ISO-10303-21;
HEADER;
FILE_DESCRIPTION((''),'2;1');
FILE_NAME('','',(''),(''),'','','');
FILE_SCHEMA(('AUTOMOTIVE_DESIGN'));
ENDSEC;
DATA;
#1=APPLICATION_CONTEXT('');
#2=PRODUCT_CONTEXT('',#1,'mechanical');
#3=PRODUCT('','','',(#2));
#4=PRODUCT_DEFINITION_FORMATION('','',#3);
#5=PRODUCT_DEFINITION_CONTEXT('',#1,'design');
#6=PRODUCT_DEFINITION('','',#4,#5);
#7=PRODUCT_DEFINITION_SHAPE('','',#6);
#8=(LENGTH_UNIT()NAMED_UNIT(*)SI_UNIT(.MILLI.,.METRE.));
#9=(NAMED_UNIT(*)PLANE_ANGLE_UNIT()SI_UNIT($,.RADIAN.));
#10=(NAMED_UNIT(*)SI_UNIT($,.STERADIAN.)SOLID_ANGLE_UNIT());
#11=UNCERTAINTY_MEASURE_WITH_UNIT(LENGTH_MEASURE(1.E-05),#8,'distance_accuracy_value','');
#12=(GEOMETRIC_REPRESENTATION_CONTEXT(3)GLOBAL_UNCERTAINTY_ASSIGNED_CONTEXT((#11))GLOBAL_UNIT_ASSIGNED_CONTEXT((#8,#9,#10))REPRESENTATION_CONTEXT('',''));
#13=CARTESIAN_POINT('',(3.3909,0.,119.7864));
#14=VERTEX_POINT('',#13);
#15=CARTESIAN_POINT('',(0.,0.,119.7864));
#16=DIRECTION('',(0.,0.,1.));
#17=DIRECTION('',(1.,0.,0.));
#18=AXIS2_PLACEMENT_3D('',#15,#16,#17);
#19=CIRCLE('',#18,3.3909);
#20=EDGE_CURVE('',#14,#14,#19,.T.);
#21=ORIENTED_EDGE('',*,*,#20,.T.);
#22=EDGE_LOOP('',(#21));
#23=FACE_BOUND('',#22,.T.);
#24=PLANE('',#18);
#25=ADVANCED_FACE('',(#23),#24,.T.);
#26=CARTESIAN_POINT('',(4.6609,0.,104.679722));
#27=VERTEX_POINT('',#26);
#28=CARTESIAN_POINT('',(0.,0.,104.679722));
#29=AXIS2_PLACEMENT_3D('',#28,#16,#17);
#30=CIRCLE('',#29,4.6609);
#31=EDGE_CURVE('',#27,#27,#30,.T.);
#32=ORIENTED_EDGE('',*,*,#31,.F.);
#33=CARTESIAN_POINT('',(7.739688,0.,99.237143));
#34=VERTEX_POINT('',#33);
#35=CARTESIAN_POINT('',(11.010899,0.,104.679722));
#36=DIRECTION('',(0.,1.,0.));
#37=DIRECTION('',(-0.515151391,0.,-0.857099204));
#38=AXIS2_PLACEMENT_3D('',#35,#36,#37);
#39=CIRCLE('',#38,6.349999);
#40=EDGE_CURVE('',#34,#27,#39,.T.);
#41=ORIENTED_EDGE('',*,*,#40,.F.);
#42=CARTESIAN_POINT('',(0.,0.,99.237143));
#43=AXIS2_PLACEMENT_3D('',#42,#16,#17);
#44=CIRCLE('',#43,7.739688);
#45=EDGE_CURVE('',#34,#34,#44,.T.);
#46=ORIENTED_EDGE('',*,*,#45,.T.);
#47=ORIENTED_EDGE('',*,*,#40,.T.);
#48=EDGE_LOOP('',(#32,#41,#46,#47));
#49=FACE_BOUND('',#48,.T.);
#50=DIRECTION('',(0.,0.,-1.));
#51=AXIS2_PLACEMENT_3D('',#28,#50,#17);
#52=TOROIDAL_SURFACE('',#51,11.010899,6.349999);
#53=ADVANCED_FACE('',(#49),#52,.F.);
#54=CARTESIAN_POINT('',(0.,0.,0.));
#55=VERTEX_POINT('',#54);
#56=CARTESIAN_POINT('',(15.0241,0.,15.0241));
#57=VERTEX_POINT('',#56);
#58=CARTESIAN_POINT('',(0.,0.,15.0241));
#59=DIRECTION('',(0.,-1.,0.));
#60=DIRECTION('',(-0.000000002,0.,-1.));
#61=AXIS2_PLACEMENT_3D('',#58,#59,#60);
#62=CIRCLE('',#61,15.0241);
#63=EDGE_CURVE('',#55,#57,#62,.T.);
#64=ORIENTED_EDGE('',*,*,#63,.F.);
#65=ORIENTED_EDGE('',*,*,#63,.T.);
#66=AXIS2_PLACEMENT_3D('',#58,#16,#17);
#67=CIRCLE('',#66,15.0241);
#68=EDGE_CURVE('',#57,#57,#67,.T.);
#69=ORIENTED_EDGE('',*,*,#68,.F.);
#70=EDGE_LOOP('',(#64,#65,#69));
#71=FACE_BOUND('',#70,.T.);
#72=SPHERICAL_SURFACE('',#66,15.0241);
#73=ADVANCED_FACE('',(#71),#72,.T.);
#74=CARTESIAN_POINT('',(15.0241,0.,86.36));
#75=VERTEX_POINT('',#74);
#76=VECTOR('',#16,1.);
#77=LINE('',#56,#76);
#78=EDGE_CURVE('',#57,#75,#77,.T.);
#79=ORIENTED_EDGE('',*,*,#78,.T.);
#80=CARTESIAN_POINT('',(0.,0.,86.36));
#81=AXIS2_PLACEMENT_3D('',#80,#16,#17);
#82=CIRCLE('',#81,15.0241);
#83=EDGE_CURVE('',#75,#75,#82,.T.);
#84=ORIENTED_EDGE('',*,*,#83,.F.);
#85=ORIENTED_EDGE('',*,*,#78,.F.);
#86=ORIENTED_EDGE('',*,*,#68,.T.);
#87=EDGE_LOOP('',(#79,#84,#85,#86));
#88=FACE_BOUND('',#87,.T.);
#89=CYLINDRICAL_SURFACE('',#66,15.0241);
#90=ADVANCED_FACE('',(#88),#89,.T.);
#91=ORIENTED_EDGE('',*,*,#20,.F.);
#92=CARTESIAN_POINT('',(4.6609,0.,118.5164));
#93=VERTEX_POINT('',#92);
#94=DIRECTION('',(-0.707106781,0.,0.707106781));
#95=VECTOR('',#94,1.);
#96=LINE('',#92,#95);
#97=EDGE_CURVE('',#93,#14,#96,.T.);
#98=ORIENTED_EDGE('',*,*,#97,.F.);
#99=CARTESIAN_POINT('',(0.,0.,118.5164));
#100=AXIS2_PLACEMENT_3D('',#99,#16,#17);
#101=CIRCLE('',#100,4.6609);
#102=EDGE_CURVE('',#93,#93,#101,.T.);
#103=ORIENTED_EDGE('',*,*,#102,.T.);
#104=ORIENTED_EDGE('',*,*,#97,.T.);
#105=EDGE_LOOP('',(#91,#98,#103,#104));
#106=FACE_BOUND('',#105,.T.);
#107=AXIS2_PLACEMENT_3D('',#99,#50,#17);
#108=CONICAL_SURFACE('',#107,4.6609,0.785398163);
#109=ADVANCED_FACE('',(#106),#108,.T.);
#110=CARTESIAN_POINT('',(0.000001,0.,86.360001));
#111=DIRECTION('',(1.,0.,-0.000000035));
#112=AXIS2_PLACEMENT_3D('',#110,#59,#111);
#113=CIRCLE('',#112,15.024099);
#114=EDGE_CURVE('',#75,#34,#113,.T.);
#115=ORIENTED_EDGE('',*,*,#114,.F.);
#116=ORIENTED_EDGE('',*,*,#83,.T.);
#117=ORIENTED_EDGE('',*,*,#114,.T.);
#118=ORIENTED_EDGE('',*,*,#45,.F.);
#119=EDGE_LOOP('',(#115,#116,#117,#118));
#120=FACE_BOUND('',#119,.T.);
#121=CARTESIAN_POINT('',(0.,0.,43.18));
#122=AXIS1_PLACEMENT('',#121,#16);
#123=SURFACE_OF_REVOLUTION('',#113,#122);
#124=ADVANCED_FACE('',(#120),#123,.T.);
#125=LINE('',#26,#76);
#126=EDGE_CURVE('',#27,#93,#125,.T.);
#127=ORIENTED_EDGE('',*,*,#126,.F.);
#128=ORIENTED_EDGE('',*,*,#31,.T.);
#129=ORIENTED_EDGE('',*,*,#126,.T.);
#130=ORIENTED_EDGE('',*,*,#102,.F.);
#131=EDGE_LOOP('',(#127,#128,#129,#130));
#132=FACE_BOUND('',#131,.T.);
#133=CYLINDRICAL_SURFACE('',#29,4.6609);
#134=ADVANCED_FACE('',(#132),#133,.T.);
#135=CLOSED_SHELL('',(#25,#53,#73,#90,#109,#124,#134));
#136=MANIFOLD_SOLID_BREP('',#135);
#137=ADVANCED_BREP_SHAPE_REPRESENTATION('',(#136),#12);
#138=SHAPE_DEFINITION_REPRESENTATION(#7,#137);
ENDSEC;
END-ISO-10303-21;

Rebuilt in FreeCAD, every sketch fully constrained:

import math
import FreeCAD as App
import Part
import Sketcher

V = App.Vector
Q = App.Units.Quantity


def edges_at(feature, points):
    """Names of the edges that pass closest to the given points."""
    edges = feature.Shape.Edges
    near = lambda p: min(range(len(edges)), key=lambda i: edges[i].distToShape(Part.Vertex(*p))[0])
    return sorted({f"Edge{near(p) + 1}" for p in points})

doc = App.newDocument("Part")
body = doc.addObject("PartDesign::Body", "Body")

# Sketch on XZ plane
sketch1 = body.newObject("Sketcher::SketchObject", "Sketch")
sketch1.AttachmentSupport = (doc.getObject("XZ_Plane"), [""])
sketch1.MapMode = "FlatFace"
sketch1.addGeometry([
    Part.ArcOfCircle(Part.Circle(V(0, 15, 0), V(0, 0, 1), 15), math.radians(-90), math.radians(0)),  # 0
    Part.LineSegment(V(15, 15, 0), V(15, 86.4, 0)),  # 1
    Part.ArcOfCircle(Part.Circle(V(0, 86.4, 0), V(0, 0, 1), 15), math.radians(0), math.radians(59)),  # 2
    Part.ArcOfCircle(Part.Circle(V(11, 104.7, 0), V(0, 0, 1), 6.3), math.radians(180), math.radians(239)),  # 3
    Part.LineSegment(V(4.7, 104.7, 0), V(4.7, 119.8, 0)),  # 4
    Part.LineSegment(V(4.7, 119.8, 0), V(0, 119.8, 0)),  # 5
    Part.LineSegment(V(0, 119.8, 0), V(0, 0, 0)),  # 6
], False)
sketch1.addConstraint([
    Sketcher.Constraint("Tangent", 0, 2, 1, 1),
    Sketcher.Constraint("Tangent", 1, 2, 2, 1),
    Sketcher.Constraint("Tangent", 2, 2, 3, 2),
    Sketcher.Constraint("Tangent", 3, 1, 4, 1),
    Sketcher.Constraint("Coincident", 4, 2, 5, 1),
    Sketcher.Constraint("Coincident", 5, 2, 6, 1),
    Sketcher.Constraint("Coincident", 6, 2, 0, 1),
    Sketcher.Constraint("Vertical", 1),
    Sketcher.Constraint("Vertical", 4),
    Sketcher.Constraint("Horizontal", 5),
    Sketcher.Constraint("Vertical", 6),
    Sketcher.Constraint("Coincident", 6, 2, -1, 1),
    Sketcher.Constraint("Equal", 0, 2),
    Sketcher.Constraint("PointOnObject", 0, 3, -2),
    Sketcher.Constraint("Radius", 3, Q("0.2499999 in")),
    Sketcher.Constraint("DistanceY", -1, 1, 2, 3, Q("3.4 in")),
    Sketcher.Constraint("Radius", 0, Q("0.5915 in")),
    Sketcher.Constraint("DistanceY", 6, 2, 6, 1, Q("4.716 in")),
    Sketcher.Constraint("DistanceX", 5, 2, 5, 1, Q("0.1835 in")),
])
revolution = body.newObject("PartDesign::Revolution", "Revolution")
revolution.Profile = sketch1
revolution.ReferenceAxis = (sketch1, ["V_Axis"])
revolution.Angle = 360
doc.recompute()

chamfer = body.newObject("PartDesign::Chamfer", "Chamfer")
chamfer.Base = (revolution, edges_at(revolution, [(-4.661, 0, 119.786)]))
chamfer.Size = Q("0.05 in")

doc.recompute()
